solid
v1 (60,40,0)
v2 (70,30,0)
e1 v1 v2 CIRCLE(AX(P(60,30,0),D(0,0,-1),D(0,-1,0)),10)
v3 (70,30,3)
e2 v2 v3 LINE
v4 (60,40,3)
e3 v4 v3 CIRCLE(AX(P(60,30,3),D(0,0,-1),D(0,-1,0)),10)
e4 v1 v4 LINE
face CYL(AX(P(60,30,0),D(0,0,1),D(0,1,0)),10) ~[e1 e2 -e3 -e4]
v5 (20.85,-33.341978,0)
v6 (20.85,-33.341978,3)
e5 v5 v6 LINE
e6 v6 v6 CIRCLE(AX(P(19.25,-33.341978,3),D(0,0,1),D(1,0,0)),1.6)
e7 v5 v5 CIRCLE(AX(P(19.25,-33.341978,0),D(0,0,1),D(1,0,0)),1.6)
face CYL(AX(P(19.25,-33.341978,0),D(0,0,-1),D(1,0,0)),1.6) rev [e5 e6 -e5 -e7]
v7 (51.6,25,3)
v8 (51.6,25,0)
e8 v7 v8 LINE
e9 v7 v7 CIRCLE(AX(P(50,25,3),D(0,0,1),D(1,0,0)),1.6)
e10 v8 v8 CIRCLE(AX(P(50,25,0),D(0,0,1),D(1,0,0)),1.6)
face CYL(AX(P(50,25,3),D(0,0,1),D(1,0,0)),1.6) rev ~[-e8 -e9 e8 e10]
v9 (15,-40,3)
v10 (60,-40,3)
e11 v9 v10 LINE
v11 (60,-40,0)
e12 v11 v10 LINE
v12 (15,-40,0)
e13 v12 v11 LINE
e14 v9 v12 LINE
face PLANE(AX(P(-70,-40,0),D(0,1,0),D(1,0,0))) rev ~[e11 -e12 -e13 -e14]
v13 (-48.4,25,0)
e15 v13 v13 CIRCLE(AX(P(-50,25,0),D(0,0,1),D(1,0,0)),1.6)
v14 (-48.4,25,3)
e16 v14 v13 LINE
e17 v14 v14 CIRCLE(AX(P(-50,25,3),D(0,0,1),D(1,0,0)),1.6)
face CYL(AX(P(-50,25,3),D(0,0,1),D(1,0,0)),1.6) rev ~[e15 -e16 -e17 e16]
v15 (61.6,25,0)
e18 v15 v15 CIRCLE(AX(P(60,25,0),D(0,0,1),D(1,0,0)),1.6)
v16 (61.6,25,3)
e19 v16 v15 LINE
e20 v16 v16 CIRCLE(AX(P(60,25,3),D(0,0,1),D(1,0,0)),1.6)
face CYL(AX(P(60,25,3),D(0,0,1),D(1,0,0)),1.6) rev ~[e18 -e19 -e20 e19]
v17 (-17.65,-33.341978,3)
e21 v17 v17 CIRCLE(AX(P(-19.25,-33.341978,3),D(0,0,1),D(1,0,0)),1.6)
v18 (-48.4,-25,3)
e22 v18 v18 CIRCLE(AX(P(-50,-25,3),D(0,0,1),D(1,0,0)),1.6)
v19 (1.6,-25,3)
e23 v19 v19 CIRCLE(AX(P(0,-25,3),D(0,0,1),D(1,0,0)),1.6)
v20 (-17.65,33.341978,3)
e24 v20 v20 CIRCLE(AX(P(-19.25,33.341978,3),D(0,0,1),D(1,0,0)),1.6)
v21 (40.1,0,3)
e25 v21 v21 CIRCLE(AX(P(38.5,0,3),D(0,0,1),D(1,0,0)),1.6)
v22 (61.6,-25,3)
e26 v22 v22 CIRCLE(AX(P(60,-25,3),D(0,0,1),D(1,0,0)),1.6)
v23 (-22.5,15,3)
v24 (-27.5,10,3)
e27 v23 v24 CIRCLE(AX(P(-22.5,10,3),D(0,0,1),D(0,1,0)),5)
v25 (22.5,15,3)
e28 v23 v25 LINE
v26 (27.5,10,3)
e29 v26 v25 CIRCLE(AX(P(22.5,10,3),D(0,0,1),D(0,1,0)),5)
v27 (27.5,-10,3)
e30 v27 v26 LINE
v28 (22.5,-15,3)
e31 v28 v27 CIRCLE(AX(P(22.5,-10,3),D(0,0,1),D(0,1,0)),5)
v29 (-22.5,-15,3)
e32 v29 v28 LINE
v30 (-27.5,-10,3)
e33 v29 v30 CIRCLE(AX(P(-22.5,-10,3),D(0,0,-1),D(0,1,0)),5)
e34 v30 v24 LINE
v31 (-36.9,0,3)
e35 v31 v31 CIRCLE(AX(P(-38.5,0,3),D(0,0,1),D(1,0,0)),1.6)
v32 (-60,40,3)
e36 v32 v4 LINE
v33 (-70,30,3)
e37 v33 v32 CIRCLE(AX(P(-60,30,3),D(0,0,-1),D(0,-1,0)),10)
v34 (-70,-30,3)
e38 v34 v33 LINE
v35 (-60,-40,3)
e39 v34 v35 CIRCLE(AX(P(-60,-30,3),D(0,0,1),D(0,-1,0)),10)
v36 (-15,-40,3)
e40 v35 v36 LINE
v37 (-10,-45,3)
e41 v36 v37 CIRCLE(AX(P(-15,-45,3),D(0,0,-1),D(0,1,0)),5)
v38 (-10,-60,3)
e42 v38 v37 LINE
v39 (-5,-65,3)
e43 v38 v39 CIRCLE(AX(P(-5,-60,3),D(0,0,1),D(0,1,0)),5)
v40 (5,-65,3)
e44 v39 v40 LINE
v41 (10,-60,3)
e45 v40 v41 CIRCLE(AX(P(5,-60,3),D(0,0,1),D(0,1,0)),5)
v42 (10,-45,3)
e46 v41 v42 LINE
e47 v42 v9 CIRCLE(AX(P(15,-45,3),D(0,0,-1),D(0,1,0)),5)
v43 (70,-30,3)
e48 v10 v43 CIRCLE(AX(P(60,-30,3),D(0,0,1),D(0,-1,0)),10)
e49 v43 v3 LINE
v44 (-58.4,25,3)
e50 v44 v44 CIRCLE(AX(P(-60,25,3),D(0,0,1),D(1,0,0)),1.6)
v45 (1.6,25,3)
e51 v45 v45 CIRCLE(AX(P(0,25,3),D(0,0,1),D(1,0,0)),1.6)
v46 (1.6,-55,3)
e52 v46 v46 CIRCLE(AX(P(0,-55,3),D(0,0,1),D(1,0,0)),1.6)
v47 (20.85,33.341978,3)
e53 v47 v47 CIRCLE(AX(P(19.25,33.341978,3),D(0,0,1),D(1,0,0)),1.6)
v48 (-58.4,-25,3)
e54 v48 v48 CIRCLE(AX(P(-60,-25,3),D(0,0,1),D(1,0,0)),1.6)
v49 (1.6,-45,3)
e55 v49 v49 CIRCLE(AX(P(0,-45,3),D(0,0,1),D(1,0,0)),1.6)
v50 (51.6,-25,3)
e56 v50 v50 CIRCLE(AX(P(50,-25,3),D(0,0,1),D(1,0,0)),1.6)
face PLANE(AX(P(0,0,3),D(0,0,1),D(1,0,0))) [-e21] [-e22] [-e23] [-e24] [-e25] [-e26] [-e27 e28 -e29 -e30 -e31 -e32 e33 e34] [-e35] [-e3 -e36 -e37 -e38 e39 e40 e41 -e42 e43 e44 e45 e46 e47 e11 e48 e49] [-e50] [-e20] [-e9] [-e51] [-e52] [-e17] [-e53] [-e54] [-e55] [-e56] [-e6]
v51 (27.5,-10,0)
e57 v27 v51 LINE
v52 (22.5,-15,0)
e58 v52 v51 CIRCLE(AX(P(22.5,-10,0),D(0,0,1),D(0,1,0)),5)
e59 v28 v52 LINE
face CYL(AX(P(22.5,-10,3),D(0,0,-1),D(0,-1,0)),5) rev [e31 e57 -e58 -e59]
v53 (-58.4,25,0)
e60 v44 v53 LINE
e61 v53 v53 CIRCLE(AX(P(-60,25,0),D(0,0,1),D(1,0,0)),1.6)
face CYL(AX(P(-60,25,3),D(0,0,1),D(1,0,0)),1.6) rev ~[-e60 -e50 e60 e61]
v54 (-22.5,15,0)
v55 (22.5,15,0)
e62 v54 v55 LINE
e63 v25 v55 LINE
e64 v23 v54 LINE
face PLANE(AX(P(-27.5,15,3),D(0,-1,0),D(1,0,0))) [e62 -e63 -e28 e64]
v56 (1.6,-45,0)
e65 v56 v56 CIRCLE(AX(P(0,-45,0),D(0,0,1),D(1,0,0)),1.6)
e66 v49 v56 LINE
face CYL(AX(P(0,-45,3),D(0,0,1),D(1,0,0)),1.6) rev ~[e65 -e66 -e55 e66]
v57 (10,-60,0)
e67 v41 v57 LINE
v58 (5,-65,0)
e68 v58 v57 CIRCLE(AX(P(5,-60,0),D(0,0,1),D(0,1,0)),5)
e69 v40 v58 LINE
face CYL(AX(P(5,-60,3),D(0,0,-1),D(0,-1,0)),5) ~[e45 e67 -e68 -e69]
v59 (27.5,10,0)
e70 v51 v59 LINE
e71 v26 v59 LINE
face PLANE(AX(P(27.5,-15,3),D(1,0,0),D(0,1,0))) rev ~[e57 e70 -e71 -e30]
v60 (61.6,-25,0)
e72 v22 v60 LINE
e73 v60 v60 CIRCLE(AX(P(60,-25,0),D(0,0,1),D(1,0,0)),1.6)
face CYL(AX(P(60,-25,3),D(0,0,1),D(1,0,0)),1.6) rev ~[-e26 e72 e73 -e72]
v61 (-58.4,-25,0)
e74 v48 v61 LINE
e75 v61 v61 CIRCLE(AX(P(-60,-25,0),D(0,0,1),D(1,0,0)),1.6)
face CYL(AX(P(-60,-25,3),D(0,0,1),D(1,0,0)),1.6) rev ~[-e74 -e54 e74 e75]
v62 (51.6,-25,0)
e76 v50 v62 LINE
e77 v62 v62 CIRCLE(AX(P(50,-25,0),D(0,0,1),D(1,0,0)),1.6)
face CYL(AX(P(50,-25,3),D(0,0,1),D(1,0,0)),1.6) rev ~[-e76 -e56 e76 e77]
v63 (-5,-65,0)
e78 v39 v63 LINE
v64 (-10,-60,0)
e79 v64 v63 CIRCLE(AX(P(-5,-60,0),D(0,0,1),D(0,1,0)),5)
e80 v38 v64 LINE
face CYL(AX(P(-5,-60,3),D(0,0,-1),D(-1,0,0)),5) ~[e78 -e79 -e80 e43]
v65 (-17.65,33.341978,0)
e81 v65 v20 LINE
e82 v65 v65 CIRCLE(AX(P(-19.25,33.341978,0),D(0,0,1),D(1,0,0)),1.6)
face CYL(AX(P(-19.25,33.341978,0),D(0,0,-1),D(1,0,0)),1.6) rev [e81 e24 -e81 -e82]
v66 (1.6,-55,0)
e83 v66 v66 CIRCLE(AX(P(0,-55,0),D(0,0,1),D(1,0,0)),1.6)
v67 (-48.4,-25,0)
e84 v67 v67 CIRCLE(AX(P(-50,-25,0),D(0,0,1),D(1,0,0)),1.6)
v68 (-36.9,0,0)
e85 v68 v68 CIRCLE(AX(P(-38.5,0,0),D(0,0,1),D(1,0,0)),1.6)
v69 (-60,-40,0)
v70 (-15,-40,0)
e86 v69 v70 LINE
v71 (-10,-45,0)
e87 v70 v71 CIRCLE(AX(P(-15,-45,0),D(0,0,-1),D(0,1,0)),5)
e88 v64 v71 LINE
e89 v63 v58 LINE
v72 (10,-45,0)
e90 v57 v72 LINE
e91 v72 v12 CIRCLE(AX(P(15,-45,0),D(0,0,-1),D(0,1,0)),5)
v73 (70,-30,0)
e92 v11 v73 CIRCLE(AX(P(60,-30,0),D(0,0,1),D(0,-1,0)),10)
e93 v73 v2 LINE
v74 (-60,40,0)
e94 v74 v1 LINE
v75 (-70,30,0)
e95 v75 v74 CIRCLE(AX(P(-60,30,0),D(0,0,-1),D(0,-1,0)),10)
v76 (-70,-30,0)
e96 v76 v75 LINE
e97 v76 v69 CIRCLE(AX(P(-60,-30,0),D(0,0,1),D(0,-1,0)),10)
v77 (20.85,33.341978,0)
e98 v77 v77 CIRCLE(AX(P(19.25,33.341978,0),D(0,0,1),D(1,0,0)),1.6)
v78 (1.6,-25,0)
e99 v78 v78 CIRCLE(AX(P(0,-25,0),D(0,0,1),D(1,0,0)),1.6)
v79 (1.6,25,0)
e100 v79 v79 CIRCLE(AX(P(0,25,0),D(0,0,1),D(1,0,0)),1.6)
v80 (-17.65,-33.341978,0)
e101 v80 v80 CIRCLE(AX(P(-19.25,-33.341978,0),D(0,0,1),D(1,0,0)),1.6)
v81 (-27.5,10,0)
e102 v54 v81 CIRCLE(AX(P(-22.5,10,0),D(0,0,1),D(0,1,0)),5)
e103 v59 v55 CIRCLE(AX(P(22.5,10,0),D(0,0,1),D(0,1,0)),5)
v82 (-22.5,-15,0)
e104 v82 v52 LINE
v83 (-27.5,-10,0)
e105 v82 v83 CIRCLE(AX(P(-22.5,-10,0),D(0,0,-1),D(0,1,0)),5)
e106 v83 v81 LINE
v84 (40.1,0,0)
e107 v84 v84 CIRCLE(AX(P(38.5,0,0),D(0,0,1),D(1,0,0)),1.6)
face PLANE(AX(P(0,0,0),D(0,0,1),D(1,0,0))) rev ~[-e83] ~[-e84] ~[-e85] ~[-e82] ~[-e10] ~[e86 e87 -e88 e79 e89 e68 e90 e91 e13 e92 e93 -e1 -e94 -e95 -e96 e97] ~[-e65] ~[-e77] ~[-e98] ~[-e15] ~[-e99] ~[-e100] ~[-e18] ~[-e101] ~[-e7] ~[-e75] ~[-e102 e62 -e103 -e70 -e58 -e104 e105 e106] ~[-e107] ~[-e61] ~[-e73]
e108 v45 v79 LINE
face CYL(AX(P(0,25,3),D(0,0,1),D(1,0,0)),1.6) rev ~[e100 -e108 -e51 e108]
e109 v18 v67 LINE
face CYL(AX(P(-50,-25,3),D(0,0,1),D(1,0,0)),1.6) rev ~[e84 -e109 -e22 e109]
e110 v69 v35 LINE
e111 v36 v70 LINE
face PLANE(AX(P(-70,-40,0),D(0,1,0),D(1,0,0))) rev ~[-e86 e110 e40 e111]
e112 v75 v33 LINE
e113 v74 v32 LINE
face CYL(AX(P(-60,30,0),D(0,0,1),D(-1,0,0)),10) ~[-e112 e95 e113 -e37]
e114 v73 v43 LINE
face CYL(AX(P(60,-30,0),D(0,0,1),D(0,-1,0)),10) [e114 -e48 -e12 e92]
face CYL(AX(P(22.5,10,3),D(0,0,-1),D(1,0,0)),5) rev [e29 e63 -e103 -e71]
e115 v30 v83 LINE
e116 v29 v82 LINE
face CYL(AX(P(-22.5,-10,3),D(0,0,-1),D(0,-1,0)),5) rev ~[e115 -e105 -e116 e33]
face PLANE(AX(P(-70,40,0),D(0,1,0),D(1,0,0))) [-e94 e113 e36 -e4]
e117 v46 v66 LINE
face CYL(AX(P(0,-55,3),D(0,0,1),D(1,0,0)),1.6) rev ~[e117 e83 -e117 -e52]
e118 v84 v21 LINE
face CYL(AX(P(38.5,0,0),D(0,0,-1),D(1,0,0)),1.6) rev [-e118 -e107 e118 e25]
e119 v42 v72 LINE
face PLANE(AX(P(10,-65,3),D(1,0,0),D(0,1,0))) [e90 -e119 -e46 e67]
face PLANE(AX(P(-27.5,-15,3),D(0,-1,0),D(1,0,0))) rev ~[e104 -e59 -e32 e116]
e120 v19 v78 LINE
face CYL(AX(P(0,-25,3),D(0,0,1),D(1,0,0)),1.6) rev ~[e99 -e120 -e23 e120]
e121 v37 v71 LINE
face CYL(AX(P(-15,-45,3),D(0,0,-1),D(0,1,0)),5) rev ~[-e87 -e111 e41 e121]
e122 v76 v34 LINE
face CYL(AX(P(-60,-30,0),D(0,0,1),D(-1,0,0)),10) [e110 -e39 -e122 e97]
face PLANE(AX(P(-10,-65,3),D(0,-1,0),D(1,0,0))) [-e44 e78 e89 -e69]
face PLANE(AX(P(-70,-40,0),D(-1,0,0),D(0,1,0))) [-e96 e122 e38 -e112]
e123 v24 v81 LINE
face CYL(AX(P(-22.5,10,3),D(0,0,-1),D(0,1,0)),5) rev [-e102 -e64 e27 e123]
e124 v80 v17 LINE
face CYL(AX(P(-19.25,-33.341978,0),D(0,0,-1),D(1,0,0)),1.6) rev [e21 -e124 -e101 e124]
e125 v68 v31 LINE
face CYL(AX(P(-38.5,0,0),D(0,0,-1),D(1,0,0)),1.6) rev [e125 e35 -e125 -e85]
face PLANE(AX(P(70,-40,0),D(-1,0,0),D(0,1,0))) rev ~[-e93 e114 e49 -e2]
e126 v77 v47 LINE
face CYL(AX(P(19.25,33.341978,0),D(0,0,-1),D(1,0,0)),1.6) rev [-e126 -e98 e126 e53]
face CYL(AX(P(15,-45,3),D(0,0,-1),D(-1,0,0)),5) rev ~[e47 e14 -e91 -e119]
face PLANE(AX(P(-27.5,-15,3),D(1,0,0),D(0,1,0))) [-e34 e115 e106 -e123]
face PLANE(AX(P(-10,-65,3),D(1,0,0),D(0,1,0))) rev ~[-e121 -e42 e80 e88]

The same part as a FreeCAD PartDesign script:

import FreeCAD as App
import Part
import Sketcher
from FreeCAD import Vector


def edges_at(feature, points):
    """Names of the edges that pass closest to the given points."""
    edges = feature.Shape.Edges
    near = lambda p: min(range(len(edges)), key=lambda i: edges[i].distToShape(Part.Vertex(*p))[0])
    return sorted({f"Edge{near(p) + 1}" for p in points})

doc = App.newDocument("Part")
body = doc.addObject("PartDesign::Body", "Body")

# Sketch on XY plane
sketch1 = body.newObject("Sketcher::SketchObject", "Sketch")
sketch1.AttachmentSupport = (doc.getObject("XY_Plane"), [""])
sketch1.MapMode = "FlatFace"
sketch1.addGeometry(Part.LineSegment(Vector(-70, 40, 0), Vector(-70, -40, 0)), False)
sketch1.addGeometry(Part.LineSegment(Vector(-70, -40, 0), Vector(70, -40, 0)), False)
sketch1.addGeometry(Part.LineSegment(Vector(70, -40, 0), Vector(70, 40, 0)), False)
sketch1.addGeometry(Part.LineSegment(Vector(70, 40, 0), Vector(-70, 40, 0)), False)
sketch1.addGeometry(Part.Circle(Vector(-19.25, -33.341978, 0), Vector(0, 0, 1), 1.6), False)
sketch1.addGeometry(Part.Circle(Vector(19.25, -33.341978, 0), Vector(0, 0, 1), 1.6), False)
sketch1.addGeometry(Part.Circle(Vector(-38.5, 0, 0), Vector(0, 0, 1), 1.6), False)
sketch1.addGeometry(Part.Circle(Vector(-19.25, 33.341978, 0), Vector(0, 0, 1), 1.6), False)
sketch1.addGeometry(Part.Circle(Vector(38.5, 0, 0), Vector(0, 0, 1), 1.6), False)
sketch1.addGeometry(Part.Circle(Vector(19.25, 33.341978, 0), Vector(0, 0, 1), 1.6), False)
sketch1.addConstraint(Sketcher.Constraint("Coincident", 0, 2, 1, 1))
sketch1.addConstraint(Sketcher.Constraint("Coincident", 1, 2, 2, 1))
sketch1.addConstraint(Sketcher.Constraint("Coincident", 2, 2, 3, 1))
sketch1.addConstraint(Sketcher.Constraint("Coincident", 3, 2, 0, 1))
sketch1.addConstraint(Sketcher.Constraint("Vertical", 0))
sketch1.addConstraint(Sketcher.Constraint("Horizontal", 1))
sketch1.addConstraint(Sketcher.Constraint("Vertical", 2))
sketch1.addConstraint(Sketcher.Constraint("Horizontal", 3))
sketch1.addConstraint(Sketcher.Constraint("Equal", 4, 5))
sketch1.addConstraint(Sketcher.Constraint("Equal", 5, 6))
sketch1.addConstraint(Sketcher.Constraint("Equal", 6, 7))
sketch1.addConstraint(Sketcher.Constraint("Equal", 7, 8))
sketch1.addConstraint(Sketcher.Constraint("Equal", 8, 9))
sketch1.addConstraint(Sketcher.Constraint("Symmetric", 5, 3, 7, 3, -1, 1))
sketch1.addConstraint(Sketcher.Constraint("Symmetric", 6, 3, 8, 3, -1, 1))
sketch1.addConstraint(Sketcher.Constraint("Symmetric", 4, 3, 9, 3, -1, 1))
sketch1.addConstraint(Sketcher.Constraint("Symmetric", 0, 2, 2, 2, -1, 1))
sketch1.addConstraint(Sketcher.Constraint("Symmetric", 4, 3, 5, 3, -2))
sketch1.addConstraint(Sketcher.Constraint("PointOnObject", 6, 3, -1))
sketch1.addConstraint(Sketcher.Constraint("Diameter", 4, 3.2))
sketch1.addConstraint(Sketcher.Constraint("DistanceX", 1, 1, 1, 2, 140.0))
sketch1.addConstraint(Sketcher.Constraint("DistanceY", 0, 2, 0, 1, 80.0))
sketch1.addConstraint(Sketcher.Constraint("DistanceX", 6, 3, 8, 3, 77.0))
sketch1.addConstraint(Sketcher.Constraint("DistanceX", 4, 3, 5, 3, 38.5))
sketch1.addConstraint(Sketcher.Constraint("DistanceY", 4, 3, -1, 1, 33.341978))
pad1 = body.newObject("PartDesign::Pad", "Pad")
pad1.Profile = sketch1
pad1.Length = 3

# Sketch on XY plane
sketch2 = body.newObject("Sketcher::SketchObject", "Sketch001")
sketch2.AttachmentSupport = (doc.getObject("XY_Plane"), [""])
sketch2.MapMode = "FlatFace"
sketch2.AttachmentOffset = App.Placement(Vector(0, 0, 3), App.Rotation())
sketch2.addGeometry(Part.Circle(Vector(0, 25, 0), Vector(0, 0, 1), 1.6), False)
sketch2.addGeometry(Part.Circle(Vector(-60, 25, 0), Vector(0, 0, 1), 1.6), False)
sketch2.addGeometry(Part.Circle(Vector(60, 25, 0), Vector(0, 0, 1), 1.6), False)
sketch2.addGeometry(Part.Circle(Vector(60, -25, 0), Vector(0, 0, 1), 1.6), False)
sketch2.addGeometry(Part.Circle(Vector(-60, -25, 0), Vector(0, 0, 1), 1.6), False)
sketch2.addGeometry(Part.Circle(Vector(0, -25, 0), Vector(0, 0, 1), 1.6), False)
sketch2.addConstraint(Sketcher.Constraint("Equal", 0, 1))
sketch2.addConstraint(Sketcher.Constraint("Equal", 1, 2))
sketch2.addConstraint(Sketcher.Constraint("Equal", 2, 3))
sketch2.addConstraint(Sketcher.Constraint("Equal", 3, 4))
sketch2.addConstraint(Sketcher.Constraint("Equal", 4, 5))
sketch2.addConstraint(Sketcher.Constraint("Symmetric", 1, 3, 3, 3, -1, 1))
sketch2.addConstraint(Sketcher.Constraint("Symmetric", 2, 3, 4, 3, -1, 1))
sketch2.addConstraint(Sketcher.Constraint("Symmetric", 0, 3, 5, 3, -1, 1))
sketch2.addConstraint(Sketcher.Constraint("Symmetric", 1, 3, 2, 3, -2))
sketch2.addConstraint(Sketcher.Constraint("PointOnObject", 0, 3, -2))
sketch2.addConstraint(Sketcher.Constraint("Horizontal", 0, 3, 1, 3))
sketch2.addConstraint(Sketcher.Constraint("Diameter", 0, 3.2))
sketch2.addConstraint(Sketcher.Constraint("DistanceY", -1, 1, 0, 3, 25.0))
sketch2.addConstraint(Sketcher.Constraint("DistanceX", 1, 3, -1, 1, 60.0))
pocket1 = body.newObject("PartDesign::Pocket", "Pocket")
pocket1.Profile = sketch2
pocket1.Length = 10

# Sketch on XY plane
sketch3 = body.newObject("Sketcher::SketchObject", "Sketch002")
sketch3.AttachmentSupport = (doc.getObject("XY_Plane"), [""])
sketch3.MapMode = "FlatFace"
sketch3.AttachmentOffset = App.Placement(Vector(0, 0, 3), App.Rotation())
sketch3.addGeometry(Part.LineSegment(Vector(-27.5, 15, 0), Vector(-27.5, -15, 0)), False)
sketch3.addGeometry(Part.LineSegment(Vector(-27.5, -15, 0), Vector(27.5, -15, 0)), False)
sketch3.addGeometry(Part.LineSegment(Vector(27.5, -15, 0), Vector(27.5, 15, 0)), False)
sketch3.addGeometry(Part.LineSegment(Vector(27.5, 15, 0), Vector(-27.5, 15, 0)), False)
sketch3.addConstraint(Sketcher.Constraint("Coincident", 0, 2, 1, 1))
sketch3.addConstraint(Sketcher.Constraint("Coincident", 1, 2, 2, 1))
sketch3.addConstraint(Sketcher.Constraint("Coincident", 2, 2, 3, 1))
sketch3.addConstraint(Sketcher.Constraint("Coincident", 3, 2, 0, 1))
sketch3.addConstraint(Sketcher.Constraint("Vertical", 0))
sketch3.addConstraint(Sketcher.Constraint("Horizontal", 1))
sketch3.addConstraint(Sketcher.Constraint("Vertical", 2))
sketch3.addConstraint(Sketcher.Constraint("Horizontal", 3))
sketch3.addConstraint(Sketcher.Constraint("Symmetric", 0, 2, 2, 2, -1, 1))
sketch3.addConstraint(Sketcher.Constraint("DistanceX", 1, 1, 1, 2, 55.0))
sketch3.addConstraint(Sketcher.Constraint("DistanceY", 0, 2, 0, 1, 30.0))
pocket2 = body.newObject("PartDesign::Pocket", "Pocket001")
pocket2.Profile = sketch3
pocket2.Length = 10
doc.recompute()

fillet = body.newObject("PartDesign::Fillet", "Fillet")
fillet.Base = (pocket2, edges_at(pocket2, [
    (27.5, 15, 1.5),
    (27.5, -15, 1.5),
    (-27.5, -15, 1.5),
    (-27.5, 15, 1.5),
]))
fillet.Radius = 5
doc.recompute()

fillet2 = body.newObject("PartDesign::Fillet", "Fillet001")
fillet2.Base = (fillet, edges_at(fillet, [
    (70, -40, 1.5),
    (-70, -40, 1.5),
    (-70, 40, 1.5),
    (70, 40, 1.5),
]))
fillet2.Radius = 10

# Sketch on XY plane
sketch4 = body.newObject("Sketcher::SketchObject", "Sketch003")
sketch4.AttachmentSupport = (doc.getObject("XY_Plane"), [""])
sketch4.MapMode = "FlatFace"
sketch4.AttachmentOffset = App.Placement(Vector(0, 0, 3), App.Rotation())
sketch4.addGeometry(Part.Circle(Vector(-50, 25, 0), Vector(0, 0, 1), 1.6), False)
sketch4.addGeometry(Part.Circle(Vector(-50, -25, 0), Vector(0, 0, 1), 1.6), False)
sketch4.addGeometry(Part.Circle(Vector(50, -25, 0), Vector(0, 0, 1), 1.6), False)
sketch4.addGeometry(Part.Circle(Vector(50, 25, 0), Vector(0, 0, 1), 1.6), False)
sketch4.addConstraint(Sketcher.Constraint("Equal", 0, 1))
sketch4.addConstraint(Sketcher.Constraint("Equal", 1, 2))
sketch4.addConstraint(Sketcher.Constraint("Equal", 2, 3))
sketch4.addConstraint(Sketcher.Constraint("Symmetric", 0, 3, 2, 3, -1, 1))
sketch4.addConstraint(Sketcher.Constraint("Symmetric", 1, 3, 3, 3, -1, 1))
sketch4.addConstraint(Sketcher.Constraint("Symmetric", 1, 3, 2, 3, -2))
sketch4.addConstraint(Sketcher.Constraint("Diameter", 0, 3.2))
sketch4.addConstraint(Sketcher.Constraint("DistanceX", 0, 3, -1, 1, 50.0))
sketch4.addConstraint(Sketcher.Constraint("DistanceY", -1, 1, 0, 3, 25.0))
pocket3 = body.newObject("PartDesign::Pocket", "Pocket002")
pocket3.Profile = sketch4
pocket3.Length = 10

# Sketch on XY plane
sketch5 = body.newObject("Sketcher::SketchObject", "Sketch004")
sketch5.AttachmentSupport = (doc.getObject("XY_Plane"), [""])
sketch5.MapMode = "FlatFace"
sketch5.AttachmentOffset = App.Placement(Vector(0, 0, 3), App.Rotation())
sketch5.addGeometry(Part.LineSegment(Vector(-10, -40, 0), Vector(-10, -65, 0)), False)
sketch5.addGeometry(Part.LineSegment(Vector(-10, -65, 0), Vector(10, -65, 0)), False)
sketch5.addGeometry(Part.LineSegment(Vector(10, -65, 0), Vector(10, -40, 0)), False)
sketch5.addGeometry(Part.LineSegment(Vector(10, -40, 0), Vector(-10, -40, 0)), False)
sketch5.addConstraint(Sketcher.Constraint("Coincident", 0, 2, 1, 1))
sketch5.addConstraint(Sketcher.Constraint("Coincident", 1, 2, 2, 1))
sketch5.addConstraint(Sketcher.Constraint("Coincident", 2, 2, 3, 1))
sketch5.addConstraint(Sketcher.Constraint("Coincident", 3, 2, 0, 1))
sketch5.addConstraint(Sketcher.Constraint("Vertical", 0))
sketch5.addConstraint(Sketcher.Constraint("Horizontal", 1))
sketch5.addConstraint(Sketcher.Constraint("Vertical", 2))
sketch5.addConstraint(Sketcher.Constraint("Horizontal", 3))
sketch5.addConstraint(Sketcher.Constraint("DistanceX", 1, 1, 1, 2, 20.0))
sketch5.addConstraint(Sketcher.Constraint("DistanceY", 0, 2, 0, 1, 25.0))
sketch5.addConstraint(Sketcher.Constraint("DistanceX", 0, 2, -1, 1, 10.0))
sketch5.addConstraint(Sketcher.Constraint("DistanceY", 0, 2, -1, 1, 65.0))
pad2 = body.newObject("PartDesign::Pad", "Pad001")
pad2.Profile = sketch5
pad2.Length = 3
pad2.Reversed = True

# Sketch on XY plane
sketch6 = body.newObject("Sketcher::SketchObject", "Sketch005")
sketch6.AttachmentSupport = (doc.getObject("XY_Plane"), [""])
sketch6.MapMode = "FlatFace"
sketch6.AttachmentOffset = App.Placement(Vector(0, 0, 3), App.Rotation())
sketch6.addGeometry(Part.Circle(Vector(0, -45, 0), Vector(0, 0, 1), 1.6), False)
sketch6.addGeometry(Part.Circle(Vector(0, -55, 0), Vector(0, 0, 1), 1.6), False)
sketch6.addConstraint(Sketcher.Constraint("Equal", 0, 1))
sketch6.addConstraint(Sketcher.Constraint("PointOnObject", 0, 3, -2))
sketch6.addConstraint(Sketcher.Constraint("PointOnObject", 1, 3, -2))
sketch6.addConstraint(Sketcher.Constraint("Diameter", 0, 3.2))
sketch6.addConstraint(Sketcher.Constraint("DistanceY", 0, 3, -1, 1, 45.0))
sketch6.addConstraint(Sketcher.Constraint("DistanceY", 1, 3, -1, 1, 55.0))
pocket4 = body.newObject("PartDesign::Pocket", "Pocket003")
pocket4.Profile = sketch6
pocket4.Type = "ThroughAll"
doc.recompute()

fillet3 = body.newObject("PartDesign::Fillet", "Fillet002")
fillet3.Base = (pocket4, edges_at(pocket4, [
    (-10, -40, 1.5),
    (10, -40, 1.5),
    (10, -65, 1.5),
    (-10, -65, 1.5),
]))
fillet3.Radius = 5

doc.recompute()
